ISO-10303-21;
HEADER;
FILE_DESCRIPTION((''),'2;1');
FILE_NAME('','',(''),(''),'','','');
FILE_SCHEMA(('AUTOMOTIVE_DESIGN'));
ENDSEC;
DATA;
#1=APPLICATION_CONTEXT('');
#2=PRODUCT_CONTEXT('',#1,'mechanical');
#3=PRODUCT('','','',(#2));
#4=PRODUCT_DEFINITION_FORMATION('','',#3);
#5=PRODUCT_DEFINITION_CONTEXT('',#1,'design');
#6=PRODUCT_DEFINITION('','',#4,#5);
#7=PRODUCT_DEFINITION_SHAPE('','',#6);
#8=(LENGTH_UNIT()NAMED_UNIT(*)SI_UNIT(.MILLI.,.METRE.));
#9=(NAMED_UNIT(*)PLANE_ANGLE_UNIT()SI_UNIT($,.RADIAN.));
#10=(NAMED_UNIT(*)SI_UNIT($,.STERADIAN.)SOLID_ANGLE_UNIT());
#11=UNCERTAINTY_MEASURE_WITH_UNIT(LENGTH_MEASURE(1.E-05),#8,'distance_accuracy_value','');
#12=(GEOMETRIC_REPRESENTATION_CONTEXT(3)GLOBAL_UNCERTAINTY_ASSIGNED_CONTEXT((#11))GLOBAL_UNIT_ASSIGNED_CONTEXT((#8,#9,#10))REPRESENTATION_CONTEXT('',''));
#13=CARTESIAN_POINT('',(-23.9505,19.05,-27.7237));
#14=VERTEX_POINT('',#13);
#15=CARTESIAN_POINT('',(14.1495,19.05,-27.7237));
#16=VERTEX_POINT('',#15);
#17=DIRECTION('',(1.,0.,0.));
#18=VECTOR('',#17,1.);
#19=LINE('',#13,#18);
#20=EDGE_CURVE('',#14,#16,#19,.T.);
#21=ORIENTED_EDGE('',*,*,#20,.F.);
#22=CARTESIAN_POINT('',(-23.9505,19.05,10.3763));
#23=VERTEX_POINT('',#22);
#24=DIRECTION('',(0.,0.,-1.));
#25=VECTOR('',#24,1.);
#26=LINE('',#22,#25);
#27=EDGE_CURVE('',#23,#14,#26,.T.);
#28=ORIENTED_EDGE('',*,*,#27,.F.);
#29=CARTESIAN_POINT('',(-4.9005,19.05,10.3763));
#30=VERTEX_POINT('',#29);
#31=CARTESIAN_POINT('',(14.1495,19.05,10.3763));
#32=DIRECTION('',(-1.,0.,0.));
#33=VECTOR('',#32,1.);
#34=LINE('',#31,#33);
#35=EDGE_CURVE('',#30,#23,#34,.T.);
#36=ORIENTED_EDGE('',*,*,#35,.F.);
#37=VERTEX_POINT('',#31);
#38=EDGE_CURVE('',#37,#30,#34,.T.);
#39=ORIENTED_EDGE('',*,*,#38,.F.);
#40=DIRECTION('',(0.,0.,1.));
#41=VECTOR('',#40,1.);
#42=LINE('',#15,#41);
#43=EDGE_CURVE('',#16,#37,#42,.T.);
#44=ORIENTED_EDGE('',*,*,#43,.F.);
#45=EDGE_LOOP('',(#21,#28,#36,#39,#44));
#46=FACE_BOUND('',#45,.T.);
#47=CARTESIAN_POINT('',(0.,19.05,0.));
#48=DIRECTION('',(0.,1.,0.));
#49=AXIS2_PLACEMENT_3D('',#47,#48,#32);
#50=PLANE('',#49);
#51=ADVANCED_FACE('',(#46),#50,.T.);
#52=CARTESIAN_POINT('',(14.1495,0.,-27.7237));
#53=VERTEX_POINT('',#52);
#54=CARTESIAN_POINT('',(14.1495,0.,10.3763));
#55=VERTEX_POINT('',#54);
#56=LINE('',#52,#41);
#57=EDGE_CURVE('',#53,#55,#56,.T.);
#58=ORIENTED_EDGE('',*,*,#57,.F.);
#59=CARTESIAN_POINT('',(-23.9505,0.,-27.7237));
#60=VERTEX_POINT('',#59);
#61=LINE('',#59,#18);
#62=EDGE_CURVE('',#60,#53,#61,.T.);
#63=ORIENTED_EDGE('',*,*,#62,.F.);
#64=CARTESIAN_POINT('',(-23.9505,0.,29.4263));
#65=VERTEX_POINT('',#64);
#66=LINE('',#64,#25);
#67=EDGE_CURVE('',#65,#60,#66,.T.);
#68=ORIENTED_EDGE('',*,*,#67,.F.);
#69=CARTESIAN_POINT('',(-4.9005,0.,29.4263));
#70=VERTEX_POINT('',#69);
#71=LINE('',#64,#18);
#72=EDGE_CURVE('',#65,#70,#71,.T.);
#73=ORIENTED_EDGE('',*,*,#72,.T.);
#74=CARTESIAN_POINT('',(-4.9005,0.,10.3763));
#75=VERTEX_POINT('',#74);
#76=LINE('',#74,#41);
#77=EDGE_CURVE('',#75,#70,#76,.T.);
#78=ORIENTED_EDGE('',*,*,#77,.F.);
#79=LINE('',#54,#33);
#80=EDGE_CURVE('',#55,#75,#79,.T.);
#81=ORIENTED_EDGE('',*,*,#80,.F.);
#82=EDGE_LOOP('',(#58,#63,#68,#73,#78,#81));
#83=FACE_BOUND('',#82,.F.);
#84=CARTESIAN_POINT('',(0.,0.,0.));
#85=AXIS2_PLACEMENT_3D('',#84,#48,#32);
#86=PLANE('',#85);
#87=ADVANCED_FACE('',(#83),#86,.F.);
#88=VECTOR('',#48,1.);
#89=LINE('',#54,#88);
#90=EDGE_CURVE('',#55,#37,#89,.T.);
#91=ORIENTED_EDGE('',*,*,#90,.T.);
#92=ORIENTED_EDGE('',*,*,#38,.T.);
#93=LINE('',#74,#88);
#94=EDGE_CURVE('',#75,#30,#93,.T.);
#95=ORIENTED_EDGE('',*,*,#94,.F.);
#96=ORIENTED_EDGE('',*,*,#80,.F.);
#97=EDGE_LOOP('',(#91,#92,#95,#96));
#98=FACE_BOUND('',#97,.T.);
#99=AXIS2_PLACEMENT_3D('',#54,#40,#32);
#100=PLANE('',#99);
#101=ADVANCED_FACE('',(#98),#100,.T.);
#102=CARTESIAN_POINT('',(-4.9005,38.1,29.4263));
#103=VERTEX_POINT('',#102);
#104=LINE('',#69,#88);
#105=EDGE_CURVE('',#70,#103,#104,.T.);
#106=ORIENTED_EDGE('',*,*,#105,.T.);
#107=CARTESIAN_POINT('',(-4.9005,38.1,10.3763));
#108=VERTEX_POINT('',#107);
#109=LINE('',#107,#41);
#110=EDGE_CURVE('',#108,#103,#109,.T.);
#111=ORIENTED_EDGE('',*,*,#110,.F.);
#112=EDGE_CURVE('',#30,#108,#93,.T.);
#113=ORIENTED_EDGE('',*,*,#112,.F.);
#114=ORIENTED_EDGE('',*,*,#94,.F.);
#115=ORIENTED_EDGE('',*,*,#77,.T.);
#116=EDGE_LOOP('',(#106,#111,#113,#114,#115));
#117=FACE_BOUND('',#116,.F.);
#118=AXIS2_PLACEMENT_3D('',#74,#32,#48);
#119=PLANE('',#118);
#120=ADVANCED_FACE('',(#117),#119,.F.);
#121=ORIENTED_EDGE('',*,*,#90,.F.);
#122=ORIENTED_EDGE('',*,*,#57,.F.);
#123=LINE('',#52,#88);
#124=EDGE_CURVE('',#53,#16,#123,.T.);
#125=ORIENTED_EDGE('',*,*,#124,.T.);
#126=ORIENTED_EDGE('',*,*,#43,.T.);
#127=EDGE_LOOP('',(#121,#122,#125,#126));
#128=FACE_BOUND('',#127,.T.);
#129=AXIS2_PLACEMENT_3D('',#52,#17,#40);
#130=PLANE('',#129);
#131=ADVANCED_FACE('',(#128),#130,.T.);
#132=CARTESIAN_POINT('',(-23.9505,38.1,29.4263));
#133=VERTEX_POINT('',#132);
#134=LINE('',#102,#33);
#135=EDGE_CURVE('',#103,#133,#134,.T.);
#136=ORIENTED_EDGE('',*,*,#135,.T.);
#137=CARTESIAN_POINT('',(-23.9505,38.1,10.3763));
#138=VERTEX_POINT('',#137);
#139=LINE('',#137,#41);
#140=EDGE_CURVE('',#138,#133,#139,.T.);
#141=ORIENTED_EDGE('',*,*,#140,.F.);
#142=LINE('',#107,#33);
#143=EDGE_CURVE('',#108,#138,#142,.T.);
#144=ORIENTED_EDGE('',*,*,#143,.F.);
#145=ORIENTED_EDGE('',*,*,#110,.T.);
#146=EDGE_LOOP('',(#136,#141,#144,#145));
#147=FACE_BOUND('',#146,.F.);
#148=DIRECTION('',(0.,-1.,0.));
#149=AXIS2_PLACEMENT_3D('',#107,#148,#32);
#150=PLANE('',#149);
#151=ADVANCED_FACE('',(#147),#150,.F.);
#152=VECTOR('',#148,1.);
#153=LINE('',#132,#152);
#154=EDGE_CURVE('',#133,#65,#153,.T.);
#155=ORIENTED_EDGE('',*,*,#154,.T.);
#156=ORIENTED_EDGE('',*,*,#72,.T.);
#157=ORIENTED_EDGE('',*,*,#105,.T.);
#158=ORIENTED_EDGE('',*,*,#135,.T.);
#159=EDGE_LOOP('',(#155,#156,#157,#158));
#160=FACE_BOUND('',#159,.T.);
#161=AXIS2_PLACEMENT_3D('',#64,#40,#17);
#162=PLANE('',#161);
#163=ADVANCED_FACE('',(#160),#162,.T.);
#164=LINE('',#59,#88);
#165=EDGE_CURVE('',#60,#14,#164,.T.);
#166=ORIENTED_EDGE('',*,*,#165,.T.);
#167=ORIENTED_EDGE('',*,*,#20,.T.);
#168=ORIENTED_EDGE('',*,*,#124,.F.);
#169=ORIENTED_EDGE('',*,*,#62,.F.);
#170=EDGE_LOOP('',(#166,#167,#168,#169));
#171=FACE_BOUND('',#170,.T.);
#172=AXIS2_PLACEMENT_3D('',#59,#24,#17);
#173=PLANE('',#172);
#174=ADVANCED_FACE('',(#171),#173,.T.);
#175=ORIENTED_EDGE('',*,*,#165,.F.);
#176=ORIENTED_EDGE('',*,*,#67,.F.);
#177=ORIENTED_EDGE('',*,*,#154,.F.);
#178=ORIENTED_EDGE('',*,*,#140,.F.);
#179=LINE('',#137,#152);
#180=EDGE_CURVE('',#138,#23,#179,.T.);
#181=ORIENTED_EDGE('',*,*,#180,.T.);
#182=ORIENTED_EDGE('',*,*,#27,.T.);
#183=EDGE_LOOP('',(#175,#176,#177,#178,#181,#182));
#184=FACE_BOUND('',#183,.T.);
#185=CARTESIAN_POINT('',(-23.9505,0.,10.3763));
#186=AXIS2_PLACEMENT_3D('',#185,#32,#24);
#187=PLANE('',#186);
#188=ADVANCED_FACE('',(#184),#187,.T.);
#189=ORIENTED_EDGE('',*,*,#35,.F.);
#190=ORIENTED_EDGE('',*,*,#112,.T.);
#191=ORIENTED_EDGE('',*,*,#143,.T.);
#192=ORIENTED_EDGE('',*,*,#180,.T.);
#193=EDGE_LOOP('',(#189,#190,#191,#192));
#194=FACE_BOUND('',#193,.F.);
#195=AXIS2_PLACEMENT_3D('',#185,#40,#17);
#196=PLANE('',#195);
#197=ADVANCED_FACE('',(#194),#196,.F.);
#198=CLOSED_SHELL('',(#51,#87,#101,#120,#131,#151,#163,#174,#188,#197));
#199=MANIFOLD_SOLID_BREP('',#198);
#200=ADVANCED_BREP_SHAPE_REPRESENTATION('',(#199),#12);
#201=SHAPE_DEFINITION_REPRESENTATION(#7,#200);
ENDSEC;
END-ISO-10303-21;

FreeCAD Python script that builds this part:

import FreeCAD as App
import Part
import Sketcher
Q = App.Units.Quantity

doc = App.newDocument("Part")
body = doc.addObject("PartDesign::Body", "Body")

# Sketch on XZ plane
sketch1 = body.newObject("Sketcher::SketchObject", "Sketch")
sketch1.AttachmentSupport = (doc.getObject("XZ_Plane"), [""])
sketch1.MapMode = "FlatFace"
sketch1.addGeometry([
    Part.LineSegment(App.Vector(-23.9505, 10.3763, 0), App.Vector(14.1495, 10.3763, 0)),
    Part.LineSegment(App.Vector(14.1495, 10.3763, 0), App.Vector(14.1495, -27.7237, 0)),
    Part.LineSegment(App.Vector(14.1495, -27.7237, 0), App.Vector(-23.9505, -27.7237, 0)),
    Part.LineSegment(App.Vector(-23.9505, -27.7237, 0), App.Vector(-23.9505, 10.3763, 0)),
], False)
sketch1.addConstraint([
    Sketcher.Constraint("Coincident", 0, 2, 1, 1),
    Sketcher.Constraint("Coincident", 1, 2, 2, 1),
    Sketcher.Constraint("Coincident", 2, 2, 3, 1),
    Sketcher.Constraint("Coincident", 3, 2, 0, 1),
    Sketcher.Constraint("Horizontal", 0),
    Sketcher.Constraint("Vertical", 1),
    Sketcher.Constraint("Horizontal", 2),
    Sketcher.Constraint("Vertical", 3),
    Sketcher.Constraint("Equal", 2, 1),
    Sketcher.Constraint("DistanceX", 0, 1, 0, 2, Q("1.5 in")),
    Sketcher.Constraint("DistanceX", -1, 1, 0, 2, 14.1495),
    Sketcher.Constraint("DistanceY", -1, 1, 0, 2, 10.3763),
])
pad1 = body.newObject("PartDesign::Pad", "Pad")
pad1.Profile = sketch1
pad1.Length = Q("0.75 in")
pad1.Reversed = True

# Sketch on XY plane
sketch2 = body.newObject("Sketcher::SketchObject", "Sketch001")
sketch2.AttachmentSupport = (doc.getObject("XY_Plane"), [""])
sketch2.MapMode = "FlatFace"
sketch2.AttachmentOffset = App.Placement(App.Vector(0, 0, 10.3763), App.Rotation())
sketch2.addGeometry([
    Part.LineSegment(App.Vector(-23.9505, 38.1, 0), App.Vector(-23.9505, 0, 0)),
    Part.LineSegment(App.Vector(-23.9505, 0, 0), App.Vector(-4.9005, 0, 0)),
    Part.LineSegment(App.Vector(-4.9005, 0, 0), App.Vector(-4.9005, 38.1, 0)),
    Part.LineSegment(App.Vector(-4.9005, 38.1, 0), App.Vector(-23.9505, 38.1, 0)),
], False)
sketch2.addConstraint([
    Sketcher.Constraint("Coincident", 0, 2, 1, 1),
    Sketcher.Constraint("Coincident", 1, 2, 2, 1),
    Sketcher.Constraint("Coincident", 2, 2, 3, 1),
    Sketcher.Constraint("Coincident", 3, 2, 0, 1),
    Sketcher.Constraint("Vertical", 0),
    Sketcher.Constraint("Horizontal", 1),
    Sketcher.Constraint("Vertical", 2),
    Sketcher.Constraint("Horizontal", 3),
    Sketcher.Constraint("PointOnObject", 0, 2, -1),
    Sketcher.Constraint("DistanceY", 0, 2, 0, 1, Q("1.5 in")),
    Sketcher.Constraint("DistanceX", 1, 1, 1, 2, Q("0.75 in")),
    Sketcher.Constraint("DistanceX", 0, 2, -1, 1, 23.9505),
])
pad2 = body.newObject("PartDesign::Pad", "Pad001")
pad2.Profile = sketch2
pad2.Length = Q("0.75 in")

doc.recompute()
